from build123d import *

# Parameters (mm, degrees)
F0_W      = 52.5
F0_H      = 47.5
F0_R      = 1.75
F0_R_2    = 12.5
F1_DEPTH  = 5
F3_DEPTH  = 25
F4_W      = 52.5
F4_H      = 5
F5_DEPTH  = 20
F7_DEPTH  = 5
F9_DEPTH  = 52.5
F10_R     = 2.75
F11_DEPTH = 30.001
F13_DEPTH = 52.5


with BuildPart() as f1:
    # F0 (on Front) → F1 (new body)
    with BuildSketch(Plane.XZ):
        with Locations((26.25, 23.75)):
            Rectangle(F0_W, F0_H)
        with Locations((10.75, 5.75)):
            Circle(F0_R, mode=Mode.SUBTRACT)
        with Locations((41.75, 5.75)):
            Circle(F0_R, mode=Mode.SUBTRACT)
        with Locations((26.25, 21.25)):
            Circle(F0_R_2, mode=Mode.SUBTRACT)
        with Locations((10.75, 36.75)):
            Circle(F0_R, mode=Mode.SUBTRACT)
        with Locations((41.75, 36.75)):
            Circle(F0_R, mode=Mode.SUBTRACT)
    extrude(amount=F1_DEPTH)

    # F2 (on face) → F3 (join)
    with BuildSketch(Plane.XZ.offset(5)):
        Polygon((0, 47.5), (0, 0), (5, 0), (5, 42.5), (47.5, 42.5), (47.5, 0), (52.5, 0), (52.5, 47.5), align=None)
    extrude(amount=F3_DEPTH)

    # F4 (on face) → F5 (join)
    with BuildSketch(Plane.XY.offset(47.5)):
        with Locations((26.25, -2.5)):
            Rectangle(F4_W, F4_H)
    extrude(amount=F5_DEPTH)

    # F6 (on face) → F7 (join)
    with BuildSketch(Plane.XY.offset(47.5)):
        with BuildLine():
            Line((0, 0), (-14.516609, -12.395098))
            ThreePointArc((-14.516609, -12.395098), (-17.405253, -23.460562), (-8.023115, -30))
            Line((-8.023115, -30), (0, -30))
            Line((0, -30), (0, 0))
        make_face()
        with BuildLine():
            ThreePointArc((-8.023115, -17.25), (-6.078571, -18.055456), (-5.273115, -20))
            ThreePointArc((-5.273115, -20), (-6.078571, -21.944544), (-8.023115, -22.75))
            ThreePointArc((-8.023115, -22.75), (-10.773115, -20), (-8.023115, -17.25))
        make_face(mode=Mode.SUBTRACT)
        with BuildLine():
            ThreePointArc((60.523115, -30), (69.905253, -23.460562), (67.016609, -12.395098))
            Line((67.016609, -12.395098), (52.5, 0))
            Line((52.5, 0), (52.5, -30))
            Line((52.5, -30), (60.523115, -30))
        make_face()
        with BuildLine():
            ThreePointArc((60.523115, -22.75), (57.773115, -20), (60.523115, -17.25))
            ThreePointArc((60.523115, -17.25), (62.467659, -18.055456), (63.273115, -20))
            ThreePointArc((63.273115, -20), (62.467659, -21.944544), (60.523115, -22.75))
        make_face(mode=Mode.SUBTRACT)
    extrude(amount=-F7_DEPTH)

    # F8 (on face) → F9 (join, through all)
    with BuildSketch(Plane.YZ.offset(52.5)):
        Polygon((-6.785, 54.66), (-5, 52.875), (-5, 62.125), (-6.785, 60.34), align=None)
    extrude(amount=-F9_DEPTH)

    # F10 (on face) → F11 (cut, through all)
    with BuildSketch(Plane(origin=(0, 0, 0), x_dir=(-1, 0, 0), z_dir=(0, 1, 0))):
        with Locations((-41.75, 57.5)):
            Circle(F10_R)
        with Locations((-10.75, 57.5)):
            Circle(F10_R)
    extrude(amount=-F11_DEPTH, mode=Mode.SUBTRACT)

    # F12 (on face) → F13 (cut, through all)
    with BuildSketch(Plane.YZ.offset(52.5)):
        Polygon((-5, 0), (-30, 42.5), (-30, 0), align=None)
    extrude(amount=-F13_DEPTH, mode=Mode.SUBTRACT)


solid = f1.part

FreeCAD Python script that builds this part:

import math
import FreeCAD as App
import Part
import Sketcher
Q = App.Units.Quantity

doc = App.newDocument("Part")
params = doc.addObject("Spreadsheet::Sheet", "Params")
for row, (alias, value) in enumerate([
    ("sketch1_diameter", "25 mm"),
    ("sketch1_diameter2", "3.5 mm"),
    ("sketch1_width", "52.5 mm"),
    ("sketch1_height", "47.5 mm"),
    ("pad1_length", "5 mm"),
    ("sketch2_width", "5 mm"),
    ("sketch2_width2", "42.5 mm"),
    ("sketch2_height", "47.5 mm"),
    ("pad2_length", "25 mm"),
    ("sketch3_height", "5 mm"),
    ("sketch3_width", "52.5 mm"),
    ("pad3_length", "20 mm"),
    ("sketch4_radius", "10 mm"),
    ("sketch4_height", "30 mm"),
    ("sketch4_radius2", "2.75 mm"),
    ("pad4_length", "5 mm"),
    ("sketch5_height", "9.25 mm"),
    ("sketch5_height2", "5.68 mm"),
    ("pad5_length", "52.5 mm"),
    ("sketch6_diameter", "5.5 mm"),
    ("sketch7_width", "25 mm"),
    ("sketch7_height", "42.5 mm"),
], start=1):
    params.set(f"A{row}", alias)
    params.set(f"B{row}", "=" + value)
    params.setAlias(f"B{row}", alias)

body = doc.addObject("PartDesign::Body", "Body")

sketch1 = doc.addObject("Sketcher::SketchObject", "Sketch")
body.addObject(sketch1)
sketch1.AttachmentSupport = (doc.XZ_Plane, [""])
sketch1.MapMode = "FlatFace"
sketch1.addGeometry([
    Part.LineSegment(App.Vector(0, 47.5, 0), App.Vector(0, 0, 0)),
    Part.LineSegment(App.Vector(0, 0, 0), App.Vector(52.5, 0, 0)),
    Part.LineSegment(App.Vector(52.5, 0, 0), App.Vector(52.5, 47.5, 0)),
    Part.LineSegment(App.Vector(52.5, 47.5, 0), App.Vector(0, 47.5, 0)),
    Part.Circle(App.Vector(10.8, 5.8, 0), App.Vector(0, 0, 1), 1.8),
    Part.Circle(App.Vector(41.8, 5.8, 0), App.Vector(0, 0, 1), 1.8),
    Part.Circle(App.Vector(10.8, 36.8, 0), App.Vector(0, 0, 1), 1.8),
    Part.Circle(App.Vector(26.2, 21.2, 0), App.Vector(0, 0, 1), 12.5),
    Part.Circle(App.Vector(41.8, 36.8, 0), App.Vector(0, 0, 1), 1.8),
], False)
sketch1.addConstraint([
    Sketcher.Constraint("Coincident", 0, 2, 1, 1),
    Sketcher.Constraint("Coincident", 1, 2, 2, 1),
    Sketcher.Constraint("Coincident", 2, 2, 3, 1),
    Sketcher.Constraint("Coincident", 3, 2, 0, 1),
    Sketcher.Constraint("Vertical", 0),
    Sketcher.Constraint("Horizontal", 1),
    Sketcher.Constraint("Vertical", 2),
    Sketcher.Constraint("Horizontal", 3),
    Sketcher.Constraint("Coincident", 0, 2, -1, 1),
    Sketcher.Constraint("Equal", 4, 5),
    Sketcher.Constraint("Equal", 5, 6),
    Sketcher.Constraint("Equal", 6, 8),
    Sketcher.Constraint("Horizontal", 4, 3, 5, 3),
    Sketcher.Constraint("Horizontal", 6, 3, 8, 3),
    Sketcher.Constraint("Vertical", 4, 3, 6, 3),
    Sketcher.Constraint("Vertical", 5, 3, 8, 3),
    Sketcher.Constraint("Diameter", 7, Q("25 mm")),
    Sketcher.Constraint("Diameter", 4, Q("3.5 mm")),
    Sketcher.Constraint("DistanceX", 1, 1, 1, 2, Q("52.5 mm")),
    Sketcher.Constraint("DistanceY", 0, 2, 0, 1, Q("47.5 mm")),
    Sketcher.Constraint("DistanceX", 4, 3, 5, 3, Q("31 mm")),
    Sketcher.Constraint("DistanceY", 4, 3, 6, 3, Q("31 mm")),
    Sketcher.Constraint("DistanceX", 4, 3, 7, 3, Q("15.5 mm")),
    Sketcher.Constraint("DistanceY", 4, 3, 7, 3, Q("15.5 mm")),
    Sketcher.Constraint("DistanceX", -1, 1, 4, 3, Q("10.75 mm")),
    Sketcher.Constraint("DistanceY", -1, 1, 4, 3, Q("5.75 mm")),
])
sketch1.setExpression("Constraints[16]", "Params.sketch1_diameter")
sketch1.setExpression("Constraints[17]", "Params.sketch1_diameter2")
sketch1.setExpression("Constraints[18]", "Params.sketch1_width")
sketch1.setExpression("Constraints[19]", "Params.sketch1_height")
pad1 = doc.addObject("PartDesign::Pad", "Pad")
body.addObject(pad1)
pad1.Profile = sketch1
pad1.setExpression("Length", "Params.pad1_length")

sketch2 = doc.addObject("Sketcher::SketchObject", "Sketch001")
body.addObject(sketch2)
sketch2.AttachmentSupport = (doc.XZ_Plane, [""])
sketch2.MapMode = "FlatFace"
sketch2.AttachmentOffset = App.Placement(App.Vector(0, 0, 5), App.Rotation())
sketch2.addGeometry([
    Part.LineSegment(App.Vector(0, 48, 0), App.Vector(0, 0, 0)),
    Part.LineSegment(App.Vector(0, 0, 0), App.Vector(5, 0, 0)),
    Part.LineSegment(App.Vector(5, 0, 0), App.Vector(5, 42, 0)),
    Part.LineSegment(App.Vector(5, 42, 0), App.Vector(48, 42, 0)),
    Part.LineSegment(App.Vector(48, 42, 0), App.Vector(48, 0, 0)),
    Part.LineSegment(App.Vector(48, 0, 0), App.Vector(52, 0, 0)),
    Part.LineSegment(App.Vector(52, 0, 0), App.Vector(52, 48, 0)),
    Part.LineSegment(App.Vector(52, 48, 0), App.Vector(0, 48, 0)),
], False)
sketch2.addConstraint([
    Sketcher.Constraint("Coincident", 0, 2, 1, 1),
    Sketcher.Constraint("Coincident", 1, 2, 2, 1),
    Sketcher.Constraint("Coincident", 2, 2, 3, 1),
    Sketcher.Constraint("Coincident", 3, 2, 4, 1),
    Sketcher.Constraint("Coincident", 4, 2, 5, 1),
    Sketcher.Constraint("Coincident", 5, 2, 6, 1),
    Sketcher.Constraint("Coincident", 6, 2, 7, 1),
    Sketcher.Constraint("Coincident", 7, 2, 0, 1),
    Sketcher.Constraint("Vertical", 0),
    Sketcher.Constraint("Horizontal", 1),
    Sketcher.Constraint("Vertical", 2),
    Sketcher.Constraint("Horizontal", 3),
    Sketcher.Constraint("Vertical", 4),
    Sketcher.Constraint("Horizontal", 5),
    Sketcher.Constraint("Vertical", 6),
    Sketcher.Constraint("Horizontal", 7),
    Sketcher.Constraint("Coincident", 0, 2, -1, 1),
    Sketcher.Constraint("PointOnObject", 4, 2, -1),
    Sketcher.Constraint("Equal", 1, 5),
    Sketcher.Constraint("Equal", 3, 2),
    Sketcher.Constraint("DistanceX", 1, 1, 1, 2, Q("5 mm")),
    Sketcher.Constraint("DistanceX", 3, 1, 3, 2, Q("42.5 mm")),
    Sketcher.Constraint("DistanceY", 0, 2, 0, 1, Q("47.5 mm")),
])
sketch2.setExpression("Constraints[20]", "Params.sketch2_width")
sketch2.setExpression("Constraints[21]", "Params.sketch2_width2")
sketch2.setExpression("Constraints[22]", "Params.sketch2_height")
pad2 = doc.addObject("PartDesign::Pad", "Pad001")
body.addObject(pad2)
pad2.Profile = sketch2
pad2.setExpression("Length", "Params.pad2_length")

sketch3 = doc.addObject("Sketcher::SketchObject", "Sketch002")
body.addObject(sketch3)
sketch3.AttachmentSupport = (doc.XY_Plane, [""])
sketch3.MapMode = "FlatFace"
sketch3.AttachmentOffset = App.Placement(App.Vector(0, 0, 47.5), App.Rotation())
sketch3.addGeometry([
    Part.LineSegment(App.Vector(0, 0, 0), App.Vector(0, -5, 0)),
    Part.LineSegment(App.Vector(0, -5, 0), App.Vector(52, -5, 0)),
    Part.LineSegment(App.Vector(52, -5, 0), App.Vector(52, 0, 0)),
    Part.LineSegment(App.Vector(52, 0, 0), App.Vector(0, 0, 0)),
], False)
sketch3.addConstraint([
    Sketcher.Constraint("Coincident", 0, 2, 1, 1),
    Sketcher.Constraint("Coincident", 1, 2, 2, 1),
    Sketcher.Constraint("Coincident", 2, 2, 3, 1),
    Sketcher.Constraint("Coincident", 3, 2, 0, 1),
    Sketcher.Constraint("Vertical", 0),
    Sketcher.Constraint("Horizontal", 1),
    Sketcher.Constraint("Vertical", 2),
    Sketcher.Constraint("Horizontal", 3),
    Sketcher.Constraint("Coincident", 3, 2, -1, 1),
    Sketcher.Constraint("DistanceY", 0, 2, 0, 1, Q("5 mm")),
    Sketcher.Constraint("DistanceX", 1, 1, 1, 2, Q("52.5 mm")),
])
sketch3.setExpression("Constraints[9]", "Params.sketch3_height")
sketch3.setExpression("Constraints[10]", "Params.sketch3_width")
pad3 = doc.addObject("PartDesign::Pad", "Pad002")
body.addObject(pad3)
pad3.Profile = sketch3
pad3.setExpression("Length", "Params.pad3_length")

sketch4 = doc.addObject("Sketcher::SketchObject", "Sketch003")
body.addObject(sketch4)
sketch4.AttachmentSupport = (doc.XY_Plane, [""])
sketch4.MapMode = "FlatFace"
sketch4.AttachmentOffset = App.Placement(App.Vector(0, 0, 47.5), App.Rotation())
sketch4.addGeometry([
    Part.LineSegment(App.Vector(0, 0, 0), App.Vector(-14.5, -12.4, 0)),
    Part.ArcOfCircle(Part.Circle(App.Vector(-8, -20, 0), App.Vector(0, 0, 1), 10), math.radians(130), math.radians(270)),
    Part.LineSegment(App.Vector(-8, -30, 0), App.Vector(0, -30, 0)),
    Part.LineSegment(App.Vector(0, -30, 0), App.Vector(0, 0, 0)),
    Part.ArcOfCircle(Part.Circle(App.Vector(-8, -20, 0), App.Vector(0, 0, 1), 2.8), math.radians(90), math.radians(270)),
    Part.ArcOfCircle(Part.Circle(App.Vector(-8, -20, 0), App.Vector(0, 0, 1), 2.7), math.radians(0), math.radians(90)),
    Part.ArcOfCircle(Part.Circle(App.Vector(-8, -20, 0), App.Vector(0, 0, 1), 2.7), math.radians(-90), math.radians(0)),
    Part.ArcOfCircle(Part.Circle(App.Vector(60.5, -20, 0), App.Vector(0, 0, 1), 10), math.radians(-90), math.radians(50)),
    Part.LineSegment(App.Vector(67, -12.4, 0), App.Vector(52.5, 0, 0)),
    Part.LineSegment(App.Vector(52.5, 0, 0), App.Vector(52.5, -30, 0)),
    Part.LineSegment(App.Vector(52.5, -30, 0), App.Vector(60.5, -30, 0)),
    Part.ArcOfCircle(Part.Circle(App.Vector(60.5, -20, 0), App.Vector(0, 0, 1), 2.7), math.radians(-90), math.radians(0)),
    Part.ArcOfCircle(Part.Circle(App.Vector(60.5, -20, 0), App.Vector(0, 0, 1), 2.8), math.radians(90), math.radians(270)),
    Part.ArcOfCircle(Part.Circle(App.Vector(60.5, -20, 0), App.Vector(0, 0, 1), 2.7), math.radians(0), math.radians(90)),
], False)
sketch4.addConstraint([
    Sketcher.Constraint("Tangent", 0, 2, 1, 1),
    Sketcher.Constraint("Tangent", 1, 2, 2, 1),
    Sketcher.Constraint("Coincident", 2, 2, 3, 1),
    Sketcher.Constraint("Coincident", 3, 2, 0, 1),
    Sketcher.Constraint("Tangent", 4, 1, 5, 2),
    Sketcher.Constraint("Tangent", 5, 1, 6, 2),
    Sketcher.Constraint("Tangent", 6, 1, 4, 2),
    Sketcher.Constraint("Tangent", 7, 2, 8, 1),
    Sketcher.Constraint("Coincident", 8, 2, 9, 1),
    Sketcher.Constraint("Coincident", 9, 2, 10, 1),
    Sketcher.Constraint("Tangent", 10, 2, 7, 1),
    Sketcher.Constraint("Tangent", 11, 1, 12, 2),
    Sketcher.Constraint("Tangent", 12, 1, 13, 2),
    Sketcher.Constraint("Tangent", 13, 1, 11, 2),
    Sketcher.Constraint("Horizontal", 2),
    Sketcher.Constraint("Vertical", 3),
    Sketcher.Constraint("Vertical", 9),
    Sketcher.Constraint("Horizontal", 10),
    Sketcher.Constraint("Coincident", 3, 2, -1, 1),
    Sketcher.Constraint("Coincident", 4, 3, 1, 3),
    Sketcher.Constraint("Coincident", 11, 3, 7, 3),
    Sketcher.Constraint("Equal", 1, 7),
    Sketcher.Constraint("Equal", 6, 11),
    Sketcher.Constraint("PointOnObject", 8, 2, -1),
    Sketcher.Constraint("Horizontal", 6, 3, 7, 3),
    Sketcher.Constraint("Horizontal", 13, 3, 5, 1),
    Sketcher.Constraint("Horizontal", 0, 2, 7, 2),
    Sketcher.Constraint("Horizontal", 5, 1, 13, 1),
    Sketcher.Constraint("Vertical", 1, 2, 4, 1),
    Sketcher.Constraint("Vertical", 4, 1, 6, 1),
    Sketcher.Constraint("Vertical", 10, 2, 11, 1),
    Sketcher.Constraint("Vertical", 11, 1, 12, 1),
    Sketcher.Constraint("Radius", 1, Q("10 mm")),
    Sketcher.Constraint("DistanceY", 3, 1, 3, 2, Q("30 mm")),
    Sketcher.Constraint("Radius", 4, Q("2.75 mm")),
    Sketcher.Constraint("DistanceX", -1, 1, 8, 2, Q("52.5 mm")),
    Sketcher.Constraint("DistanceY", 0, 2, -1, 1, Q("12.395098 mm")),
])
sketch4.setExpression("Constraints[32]", "Params.sketch4_radius")
sketch4.setExpression("Constraints[33]", "Params.sketch4_height")
sketch4.setExpression("Constraints[34]", "Params.sketch4_radius2")
pad4 = doc.addObject("PartDesign::Pad", "Pad003")
body.addObject(pad4)
pad4.Profile = sketch4
pad4.setExpression("Length", "Params.pad4_length")
pad4.Reversed = True

sketch5 = doc.addObject("Sketcher::SketchObject", "Sketch004")
body.addObject(sketch5)
sketch5.AttachmentSupport = (doc.YZ_Plane, [""])
sketch5.MapMode = "FlatFace"
sketch5.AttachmentOffset = App.Placement(App.Vector(0, 0, 52.5), App.Rotation())
sketch5.addGeometry([
    Part.LineSegment(App.Vector(-6.8, 54.7, 0), App.Vector(-5, 52.9, 0)),
    Part.LineSegment(App.Vector(-5, 52.9, 0), App.Vector(-5, 62.1, 0)),
    Part.LineSegment(App.Vector(-5, 62.1, 0), App.Vector(-6.8, 60.3, 0)),
    Part.LineSegment(App.Vector(-6.8, 60.3, 0), App.Vector(-6.8, 54.7, 0)),
], False)
sketch5.addConstraint([
    Sketcher.Constraint("Coincident", 0, 2, 1, 1),
    Sketcher.Constraint("Coincident", 1, 2, 2, 1),
    Sketcher.Constraint("Coincident", 2, 2, 3, 1),
    Sketcher.Constraint("Coincident", 3, 2, 0, 1),
    Sketcher.Constraint("Vertical", 1),
    Sketcher.Constraint("Vertical", 3),
    Sketcher.Constraint("Perpendicular", 0, 2),
    Sketcher.Constraint("Equal", 0, 2),
    Sketcher.Constraint("DistanceX", 0, 2, -1, 1, Q("5 mm")),
    Sketcher.Constraint("DistanceY", 1, 1, 1, 2, Q("9.25 mm")),
    Sketcher.Constraint("DistanceY", 3, 2, 3, 1, Q("5.68 mm")),
    Sketcher.Constraint("DistanceY", -1, 1, 2, 2, Q("60.34 mm")),
])
sketch5.setExpression("Constraints[9]", "Params.sketch5_height")
sketch5.setExpression("Constraints[10]", "Params.sketch5_height2")
pad5 = doc.addObject("PartDesign::Pad", "Pad004")
body.addObject(pad5)
pad5.Profile = sketch5
pad5.setExpression("Length", "Params.pad5_length")
pad5.Reversed = True

sketch6 = doc.addObject("Sketcher::SketchObject", "Sketch005")
body.addObject(sketch6)
sketch6.AttachmentSupport = (doc.XZ_Plane, [""])
sketch6.MapMode = "FlatFace"
sketch6.addGeometry([
    Part.Circle(App.Vector(41.8, 57.5, 0), App.Vector(0, 0, 1), 2.8),
    Part.Circle(App.Vector(10.8, 57.5, 0), App.Vector(0, 0, 1), 2.8),
], False)
sketch6.addConstraint([
    Sketcher.Constraint("Equal", 0, 1),
    Sketcher.Constraint("Horizontal", 0, 3, 1, 3),
    Sketcher.Constraint("Diameter", 0, Q("5.5 mm")),
    Sketcher.Constraint("DistanceX", 1, 3, 0, 3, Q("31 mm")),
    Sketcher.Constraint("DistanceY", -1, 1, 0, 3, Q("57.5 mm")),
    Sketcher.Constraint("DistanceX", -1, 1, 0, 3, Q("41.75 mm")),
])
sketch6.setExpression("Constraints[2]", "Params.sketch6_diameter")
pocket1 = doc.addObject("PartDesign::Pocket", "Pocket")
body.addObject(pocket1)
pocket1.Profile = sketch6
pocket1.Type = "ThroughAll"
pocket1.Reversed = True

sketch7 = doc.addObject("Sketcher::SketchObject", "Sketch006")
body.addObject(sketch7)
sketch7.AttachmentSupport = (doc.YZ_Plane, [""])
sketch7.MapMode = "FlatFace"
sketch7.AttachmentOffset = App.Placement(App.Vector(0, 0, 52.5), App.Rotation())
sketch7.addGeometry([
    Part.LineSegment(App.Vector(-5, 0, 0), App.Vector(-30, 42, 0)),
    Part.LineSegment(App.Vector(-30, 42, 0), App.Vector(-30, 0, 0)),
    Part.LineSegment(App.Vector(-30, 0, 0), App.Vector(-5, 0, 0)),
], False)
sketch7.addConstraint([
    Sketcher.Constraint("Coincident", 0, 2, 1, 1),
    Sketcher.Constraint("Coincident", 1, 2, 2, 1),
    Sketcher.Constraint("Coincident", 2, 2, 0, 1),
    Sketcher.Constraint("Vertical", 1),
    Sketcher.Constraint("Horizontal", 2),
    Sketcher.Constraint("PointOnObject", 1, 2, -1),
    Sketcher.Constraint("DistanceX", 2, 1, 2, 2, Q("25 mm")),
    Sketcher.Constraint("DistanceY", 1, 2, 1, 1, Q("42.5 mm")),
    Sketcher.Constraint("DistanceX", 0, 2, -1, 1, Q("30 mm")),
])
sketch7.setExpression("Constraints[6]", "Params.sketch7_width")
sketch7.setExpression("Constraints[7]", "Params.sketch7_height")
pocket2 = doc.addObject("PartDesign::Pocket", "Pocket001")
body.addObject(pocket2)
pocket2.Profile = sketch7
pocket2.Type = "ThroughAll"

doc.recompute()
